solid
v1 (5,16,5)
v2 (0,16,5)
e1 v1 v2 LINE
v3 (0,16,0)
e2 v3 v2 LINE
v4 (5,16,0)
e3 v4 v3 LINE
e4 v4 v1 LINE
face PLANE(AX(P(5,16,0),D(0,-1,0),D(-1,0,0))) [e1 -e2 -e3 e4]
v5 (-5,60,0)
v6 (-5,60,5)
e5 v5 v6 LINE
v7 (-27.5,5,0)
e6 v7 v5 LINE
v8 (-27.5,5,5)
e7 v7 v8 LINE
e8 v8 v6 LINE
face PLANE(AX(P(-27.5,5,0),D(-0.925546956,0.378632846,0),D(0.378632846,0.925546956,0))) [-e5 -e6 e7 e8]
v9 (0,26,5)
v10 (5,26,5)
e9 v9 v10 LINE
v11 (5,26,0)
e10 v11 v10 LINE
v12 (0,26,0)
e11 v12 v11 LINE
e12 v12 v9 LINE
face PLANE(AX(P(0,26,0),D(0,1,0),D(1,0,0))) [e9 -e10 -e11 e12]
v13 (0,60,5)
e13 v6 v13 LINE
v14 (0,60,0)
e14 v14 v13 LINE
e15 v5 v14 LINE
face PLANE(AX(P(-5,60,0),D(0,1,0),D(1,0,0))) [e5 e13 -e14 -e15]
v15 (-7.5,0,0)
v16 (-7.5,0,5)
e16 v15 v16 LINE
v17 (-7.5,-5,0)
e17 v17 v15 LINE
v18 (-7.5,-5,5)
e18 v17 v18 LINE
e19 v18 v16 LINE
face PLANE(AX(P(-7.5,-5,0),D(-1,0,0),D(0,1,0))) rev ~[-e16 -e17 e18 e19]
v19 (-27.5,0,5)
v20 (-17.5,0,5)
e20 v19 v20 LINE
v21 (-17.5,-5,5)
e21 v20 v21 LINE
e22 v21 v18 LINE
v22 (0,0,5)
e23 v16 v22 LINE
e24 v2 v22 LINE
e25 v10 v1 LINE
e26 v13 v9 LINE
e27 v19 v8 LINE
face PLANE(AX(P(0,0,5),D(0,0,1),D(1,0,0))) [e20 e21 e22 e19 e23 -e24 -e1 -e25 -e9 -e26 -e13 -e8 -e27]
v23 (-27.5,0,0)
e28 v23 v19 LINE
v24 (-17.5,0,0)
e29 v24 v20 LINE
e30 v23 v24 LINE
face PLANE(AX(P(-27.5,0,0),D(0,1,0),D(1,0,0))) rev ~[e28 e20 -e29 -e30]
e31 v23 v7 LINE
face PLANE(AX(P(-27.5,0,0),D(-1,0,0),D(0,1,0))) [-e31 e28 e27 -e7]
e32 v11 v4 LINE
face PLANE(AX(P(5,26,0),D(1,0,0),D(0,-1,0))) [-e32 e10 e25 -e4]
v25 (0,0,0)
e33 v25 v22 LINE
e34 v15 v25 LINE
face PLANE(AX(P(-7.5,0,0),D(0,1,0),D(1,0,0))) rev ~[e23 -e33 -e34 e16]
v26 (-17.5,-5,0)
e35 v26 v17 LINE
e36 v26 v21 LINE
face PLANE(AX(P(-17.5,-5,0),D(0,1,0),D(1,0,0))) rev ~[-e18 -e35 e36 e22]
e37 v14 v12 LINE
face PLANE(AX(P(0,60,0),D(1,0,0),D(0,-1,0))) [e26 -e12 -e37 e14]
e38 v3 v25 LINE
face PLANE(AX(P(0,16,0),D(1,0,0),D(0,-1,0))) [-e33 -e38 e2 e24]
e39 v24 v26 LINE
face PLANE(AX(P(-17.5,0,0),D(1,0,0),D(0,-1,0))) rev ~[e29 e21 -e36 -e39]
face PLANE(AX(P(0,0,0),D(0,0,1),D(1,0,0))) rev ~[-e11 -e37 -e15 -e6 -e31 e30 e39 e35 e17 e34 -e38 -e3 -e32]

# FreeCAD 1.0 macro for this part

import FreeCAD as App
import Part
import Sketcher

V = App.Vector


def add_polygon(sketch, points):
    """Adds a closed chain of lines whose ends are joined by coincident constraints."""
    first, n = sketch.GeometryCount, len(points)
    for a, b in zip(points, points[1:] + points[:1]):
        sketch.addGeometry(Part.LineSegment(App.Vector(*a, 0), App.Vector(*b, 0)), False)
    for i in range(n):
        sketch.addConstraint(Sketcher.Constraint("Coincident", first + i, 2, first + (i + 1) % n, 1))

doc = App.newDocument("Part")
params = doc.addObject("Spreadsheet::Sheet", "Params")
for row, (alias, value) in enumerate([
    ("sketch1_width", "10 mm"),
    ("sketch1_width2", "5 mm"),
    ("sketch1_height", "16 mm"),
    ("pad1_length", "5 mm"),
], start=1):
    params.set(f"A{row}", alias)
    params.set(f"B{row}", "=" + value)
    params.setAlias(f"B{row}", alias)

body = doc.addObject("PartDesign::Body", "Body")

# Sketch on XY plane
sketch1 = body.newObject("Sketcher::SketchObject", "Sketch")
sketch1.AttachmentSupport = (doc.getObject("XY_Plane"), [""])
sketch1.MapMode = "FlatFace"
add_polygon(sketch1, [(-27.5, 5), (-27.5, 0), (-17.5, 0), (-17.5, -5), (-7.5, -5), (-7.5, 0), (0, 0), (0, 16), (5, 16), (5, 26), (0, 26), (0, 60), (-5, 60)])  # lines 0-12
sketch1.addConstraint([
    Sketcher.Constraint("Vertical", 0),
    Sketcher.Constraint("Horizontal", 1),
    Sketcher.Constraint("Vertical", 2),
    Sketcher.Constraint("Horizontal", 3),
    Sketcher.Constraint("Vertical", 4),
    Sketcher.Constraint("Horizontal", 5),
    Sketcher.Constraint("Vertical", 6),
    Sketcher.Constraint("Horizontal", 7),
    Sketcher.Constraint("Vertical", 8),
    Sketcher.Constraint("Horizontal", 9),
    Sketcher.Constraint("Vertical", 10),
    Sketcher.Constraint("Horizontal", 11),
    Sketcher.Constraint("Coincident", 5, 2, -1, 1),
    Sketcher.Constraint("PointOnObject", 0, 2, -1),
    Sketcher.Constraint("PointOnObject", 9, 2, -2),
    Sketcher.Constraint("Equal", 1, 3),
    Sketcher.Constraint("Equal", 9, 11),
    Sketcher.Constraint("Equal", 11, 0),
    Sketcher.Constraint("Equal", 0, 2),
    Sketcher.Constraint("Equal", 3, 8),
    Sketcher.Constraint("DistanceX", 1, 1, 1, 2, 10.0),
    Sketcher.Constraint("DistanceX", 7, 1, 7, 2, 5.0),
    Sketcher.Constraint("DistanceY", 6, 1, 6, 2, 16.0),
    Sketcher.Constraint("DistanceY", -1, 1, 10, 2, 60.0),
    Sketcher.Constraint("DistanceX", 0, 2, -1, 1, 27.5),
])
sketch1.setExpression("Constraints[33]", "Params.sketch1_width")
sketch1.setExpression("Constraints[34]", "Params.sketch1_width2")
sketch1.setExpression("Constraints[35]", "Params.sketch1_height")
pad1 = body.newObject("PartDesign::Pad", "Pad")
pad1.Profile = sketch1
pad1.setExpression("Length", "Params.pad1_length")

doc.recompute()
